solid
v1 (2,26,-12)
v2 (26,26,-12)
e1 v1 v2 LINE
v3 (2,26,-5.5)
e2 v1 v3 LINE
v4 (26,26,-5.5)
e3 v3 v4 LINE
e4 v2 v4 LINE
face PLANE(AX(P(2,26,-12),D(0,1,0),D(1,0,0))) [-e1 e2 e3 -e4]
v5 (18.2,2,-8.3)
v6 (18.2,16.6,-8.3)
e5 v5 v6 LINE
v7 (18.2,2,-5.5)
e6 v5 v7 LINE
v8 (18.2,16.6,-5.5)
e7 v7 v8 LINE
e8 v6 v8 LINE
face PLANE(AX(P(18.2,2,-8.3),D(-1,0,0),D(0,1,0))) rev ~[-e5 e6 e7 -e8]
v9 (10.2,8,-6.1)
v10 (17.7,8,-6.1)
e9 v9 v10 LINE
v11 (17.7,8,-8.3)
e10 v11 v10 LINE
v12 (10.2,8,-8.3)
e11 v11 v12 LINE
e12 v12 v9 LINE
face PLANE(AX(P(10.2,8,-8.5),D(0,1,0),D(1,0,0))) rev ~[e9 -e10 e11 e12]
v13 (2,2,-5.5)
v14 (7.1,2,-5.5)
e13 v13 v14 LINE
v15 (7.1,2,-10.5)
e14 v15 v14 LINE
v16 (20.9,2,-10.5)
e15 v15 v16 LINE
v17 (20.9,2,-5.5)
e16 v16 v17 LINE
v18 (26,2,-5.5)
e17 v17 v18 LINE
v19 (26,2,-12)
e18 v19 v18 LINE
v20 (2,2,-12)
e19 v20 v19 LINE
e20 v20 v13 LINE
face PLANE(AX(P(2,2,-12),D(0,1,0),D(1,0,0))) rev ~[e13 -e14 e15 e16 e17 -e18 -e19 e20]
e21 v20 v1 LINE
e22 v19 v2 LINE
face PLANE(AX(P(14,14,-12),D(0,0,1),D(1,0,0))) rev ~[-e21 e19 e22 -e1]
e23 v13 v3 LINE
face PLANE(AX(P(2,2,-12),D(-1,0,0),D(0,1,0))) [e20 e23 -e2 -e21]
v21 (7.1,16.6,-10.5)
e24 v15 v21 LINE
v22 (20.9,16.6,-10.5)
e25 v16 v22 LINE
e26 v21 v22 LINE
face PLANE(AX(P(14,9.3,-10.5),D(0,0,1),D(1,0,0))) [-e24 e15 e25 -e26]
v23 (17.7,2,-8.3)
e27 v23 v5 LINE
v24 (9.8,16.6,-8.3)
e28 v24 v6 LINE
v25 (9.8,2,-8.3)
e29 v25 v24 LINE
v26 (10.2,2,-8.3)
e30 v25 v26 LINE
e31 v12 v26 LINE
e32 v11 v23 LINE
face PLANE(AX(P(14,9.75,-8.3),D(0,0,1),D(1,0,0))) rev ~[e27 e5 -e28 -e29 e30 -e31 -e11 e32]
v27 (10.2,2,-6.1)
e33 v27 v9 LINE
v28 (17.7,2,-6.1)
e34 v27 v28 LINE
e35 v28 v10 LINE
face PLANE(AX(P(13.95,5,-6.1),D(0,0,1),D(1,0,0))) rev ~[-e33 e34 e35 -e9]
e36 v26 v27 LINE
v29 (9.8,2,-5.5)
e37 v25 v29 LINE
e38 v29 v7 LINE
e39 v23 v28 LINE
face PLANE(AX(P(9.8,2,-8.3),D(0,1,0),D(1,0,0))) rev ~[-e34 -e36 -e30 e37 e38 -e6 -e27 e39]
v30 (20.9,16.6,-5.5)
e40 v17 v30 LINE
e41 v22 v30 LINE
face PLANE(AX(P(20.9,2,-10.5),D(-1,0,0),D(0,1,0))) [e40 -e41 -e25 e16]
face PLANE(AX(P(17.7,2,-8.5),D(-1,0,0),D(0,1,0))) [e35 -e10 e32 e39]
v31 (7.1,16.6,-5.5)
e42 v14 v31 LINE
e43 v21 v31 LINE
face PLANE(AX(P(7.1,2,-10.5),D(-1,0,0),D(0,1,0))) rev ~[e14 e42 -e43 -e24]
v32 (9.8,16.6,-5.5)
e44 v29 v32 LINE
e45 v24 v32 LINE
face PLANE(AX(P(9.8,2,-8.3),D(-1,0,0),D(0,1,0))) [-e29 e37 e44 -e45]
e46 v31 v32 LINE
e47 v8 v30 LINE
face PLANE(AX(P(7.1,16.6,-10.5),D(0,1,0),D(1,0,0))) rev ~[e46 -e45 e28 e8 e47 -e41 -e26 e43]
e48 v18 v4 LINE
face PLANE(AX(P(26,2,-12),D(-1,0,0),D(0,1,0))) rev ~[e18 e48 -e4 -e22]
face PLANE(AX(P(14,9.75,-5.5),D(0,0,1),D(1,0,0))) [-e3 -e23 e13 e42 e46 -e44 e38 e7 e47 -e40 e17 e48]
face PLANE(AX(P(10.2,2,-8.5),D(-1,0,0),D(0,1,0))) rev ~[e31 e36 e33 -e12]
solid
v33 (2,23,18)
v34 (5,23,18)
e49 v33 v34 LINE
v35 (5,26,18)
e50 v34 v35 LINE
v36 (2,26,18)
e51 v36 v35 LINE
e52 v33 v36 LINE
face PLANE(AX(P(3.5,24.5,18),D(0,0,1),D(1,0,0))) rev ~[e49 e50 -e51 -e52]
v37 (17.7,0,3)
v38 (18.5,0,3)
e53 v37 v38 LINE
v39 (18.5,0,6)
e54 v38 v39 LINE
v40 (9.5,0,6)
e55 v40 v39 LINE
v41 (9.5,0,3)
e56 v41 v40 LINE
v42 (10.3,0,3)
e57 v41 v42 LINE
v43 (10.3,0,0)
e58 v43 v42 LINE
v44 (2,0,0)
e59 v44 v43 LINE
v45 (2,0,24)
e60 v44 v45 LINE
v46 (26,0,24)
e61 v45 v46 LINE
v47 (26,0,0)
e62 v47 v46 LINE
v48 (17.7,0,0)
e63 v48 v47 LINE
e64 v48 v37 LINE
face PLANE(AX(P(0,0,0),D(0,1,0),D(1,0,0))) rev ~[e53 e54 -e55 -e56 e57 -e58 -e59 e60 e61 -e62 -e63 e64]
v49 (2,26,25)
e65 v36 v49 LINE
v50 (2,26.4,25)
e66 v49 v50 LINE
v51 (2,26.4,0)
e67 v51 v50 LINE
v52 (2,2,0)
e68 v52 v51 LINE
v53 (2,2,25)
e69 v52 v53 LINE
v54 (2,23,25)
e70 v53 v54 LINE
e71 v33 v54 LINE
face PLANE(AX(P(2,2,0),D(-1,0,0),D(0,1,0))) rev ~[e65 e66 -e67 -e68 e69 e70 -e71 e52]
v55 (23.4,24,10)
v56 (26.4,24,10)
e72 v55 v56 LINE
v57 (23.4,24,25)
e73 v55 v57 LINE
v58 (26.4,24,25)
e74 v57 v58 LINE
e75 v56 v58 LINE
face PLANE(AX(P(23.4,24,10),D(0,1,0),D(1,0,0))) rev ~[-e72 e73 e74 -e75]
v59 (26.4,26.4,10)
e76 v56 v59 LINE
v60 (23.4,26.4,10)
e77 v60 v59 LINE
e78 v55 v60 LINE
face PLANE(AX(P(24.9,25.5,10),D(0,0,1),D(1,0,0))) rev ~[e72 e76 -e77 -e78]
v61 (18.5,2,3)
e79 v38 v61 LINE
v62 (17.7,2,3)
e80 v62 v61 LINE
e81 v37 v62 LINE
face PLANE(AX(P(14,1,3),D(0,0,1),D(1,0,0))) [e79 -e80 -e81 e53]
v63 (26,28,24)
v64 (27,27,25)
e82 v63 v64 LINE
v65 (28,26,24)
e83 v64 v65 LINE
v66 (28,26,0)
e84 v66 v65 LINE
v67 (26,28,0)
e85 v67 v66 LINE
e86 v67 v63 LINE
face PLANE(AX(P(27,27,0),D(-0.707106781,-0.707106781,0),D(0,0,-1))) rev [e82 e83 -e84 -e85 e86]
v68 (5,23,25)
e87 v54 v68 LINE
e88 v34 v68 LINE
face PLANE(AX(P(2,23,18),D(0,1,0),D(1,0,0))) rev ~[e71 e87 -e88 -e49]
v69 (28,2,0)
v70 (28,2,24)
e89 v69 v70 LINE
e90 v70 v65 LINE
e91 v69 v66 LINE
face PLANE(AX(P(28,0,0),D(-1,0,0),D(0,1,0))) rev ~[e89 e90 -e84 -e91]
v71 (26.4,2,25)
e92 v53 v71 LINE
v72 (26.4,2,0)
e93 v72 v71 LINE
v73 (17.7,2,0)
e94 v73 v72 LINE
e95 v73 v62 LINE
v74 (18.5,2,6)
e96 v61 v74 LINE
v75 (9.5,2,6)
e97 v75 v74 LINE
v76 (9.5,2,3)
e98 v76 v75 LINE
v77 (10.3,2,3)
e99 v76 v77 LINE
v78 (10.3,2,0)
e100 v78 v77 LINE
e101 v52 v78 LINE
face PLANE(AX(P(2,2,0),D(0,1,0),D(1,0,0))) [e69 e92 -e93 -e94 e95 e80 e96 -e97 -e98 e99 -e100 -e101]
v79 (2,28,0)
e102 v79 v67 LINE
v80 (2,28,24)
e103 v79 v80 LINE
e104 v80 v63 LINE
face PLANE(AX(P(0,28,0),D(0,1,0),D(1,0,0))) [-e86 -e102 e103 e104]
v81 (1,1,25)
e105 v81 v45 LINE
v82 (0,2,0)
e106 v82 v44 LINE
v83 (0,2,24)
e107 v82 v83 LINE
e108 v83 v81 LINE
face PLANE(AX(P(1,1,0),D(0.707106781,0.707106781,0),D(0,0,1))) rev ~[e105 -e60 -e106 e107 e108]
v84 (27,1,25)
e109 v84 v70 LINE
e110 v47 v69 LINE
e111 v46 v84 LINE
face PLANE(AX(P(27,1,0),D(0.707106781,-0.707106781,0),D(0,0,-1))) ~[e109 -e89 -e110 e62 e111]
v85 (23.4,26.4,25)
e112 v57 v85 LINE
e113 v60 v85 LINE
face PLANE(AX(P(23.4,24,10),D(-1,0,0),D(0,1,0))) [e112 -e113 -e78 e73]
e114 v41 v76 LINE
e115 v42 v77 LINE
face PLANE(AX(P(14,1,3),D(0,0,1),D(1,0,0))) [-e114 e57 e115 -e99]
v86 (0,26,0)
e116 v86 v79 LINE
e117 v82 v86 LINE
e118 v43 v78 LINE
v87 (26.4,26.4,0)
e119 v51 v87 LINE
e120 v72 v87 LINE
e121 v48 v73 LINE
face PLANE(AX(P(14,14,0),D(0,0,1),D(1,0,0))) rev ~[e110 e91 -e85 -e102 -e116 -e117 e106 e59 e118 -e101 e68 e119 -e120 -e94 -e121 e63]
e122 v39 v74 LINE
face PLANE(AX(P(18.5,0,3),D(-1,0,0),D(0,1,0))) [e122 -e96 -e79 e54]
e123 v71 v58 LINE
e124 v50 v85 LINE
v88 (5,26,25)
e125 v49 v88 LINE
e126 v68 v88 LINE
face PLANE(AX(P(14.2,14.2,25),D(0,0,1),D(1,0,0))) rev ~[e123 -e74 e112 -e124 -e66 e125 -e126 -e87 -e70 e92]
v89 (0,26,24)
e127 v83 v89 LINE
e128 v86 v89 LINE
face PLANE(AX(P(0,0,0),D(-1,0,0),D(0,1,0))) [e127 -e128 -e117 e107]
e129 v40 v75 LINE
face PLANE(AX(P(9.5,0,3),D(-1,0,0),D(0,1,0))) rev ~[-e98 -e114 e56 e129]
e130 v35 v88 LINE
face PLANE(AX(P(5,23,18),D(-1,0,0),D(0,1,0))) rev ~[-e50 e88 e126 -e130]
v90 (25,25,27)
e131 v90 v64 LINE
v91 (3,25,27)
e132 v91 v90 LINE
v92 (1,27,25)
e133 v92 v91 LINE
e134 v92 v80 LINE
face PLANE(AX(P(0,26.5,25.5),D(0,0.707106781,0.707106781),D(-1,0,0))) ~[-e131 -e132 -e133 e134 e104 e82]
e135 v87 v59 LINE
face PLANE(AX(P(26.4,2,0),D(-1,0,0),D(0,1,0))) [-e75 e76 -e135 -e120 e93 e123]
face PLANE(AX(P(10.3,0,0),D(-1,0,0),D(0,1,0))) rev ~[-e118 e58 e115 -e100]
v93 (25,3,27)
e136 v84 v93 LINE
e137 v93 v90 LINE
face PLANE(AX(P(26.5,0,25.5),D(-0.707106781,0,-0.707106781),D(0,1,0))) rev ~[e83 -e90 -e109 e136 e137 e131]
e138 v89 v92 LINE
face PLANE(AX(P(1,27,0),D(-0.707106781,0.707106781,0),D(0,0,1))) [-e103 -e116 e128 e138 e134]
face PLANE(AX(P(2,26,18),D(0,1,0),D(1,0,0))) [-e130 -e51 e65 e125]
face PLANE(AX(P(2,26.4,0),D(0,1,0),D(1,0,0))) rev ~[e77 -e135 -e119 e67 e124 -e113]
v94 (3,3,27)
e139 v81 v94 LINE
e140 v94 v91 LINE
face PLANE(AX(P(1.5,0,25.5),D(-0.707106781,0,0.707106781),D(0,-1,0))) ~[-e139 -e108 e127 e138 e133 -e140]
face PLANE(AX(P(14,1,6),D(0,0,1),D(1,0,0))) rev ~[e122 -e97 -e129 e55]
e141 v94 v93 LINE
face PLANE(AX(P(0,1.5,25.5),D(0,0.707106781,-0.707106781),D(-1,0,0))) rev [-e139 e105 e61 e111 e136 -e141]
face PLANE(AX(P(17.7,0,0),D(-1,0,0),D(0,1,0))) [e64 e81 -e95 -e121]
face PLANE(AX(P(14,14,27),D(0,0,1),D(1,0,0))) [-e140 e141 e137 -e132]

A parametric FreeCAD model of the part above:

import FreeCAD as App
import Part
import Sketcher


def edges_at(feature, points):
    """Names of the edges that pass closest to the given points."""
    edges = feature.Shape.Edges
    near = lambda p: min(range(len(edges)), key=lambda i: edges[i].distToShape(Part.Vertex(*p))[0])
    return sorted({f"Edge{near(p) + 1}" for p in points})

doc = App.newDocument("Part")
body = doc.addObject("PartDesign::Body", "Body")

# Sketch on XY plane
sketch1 = doc.addObject("Sketcher::SketchObject", "Sketch")
body.addObject(sketch1)
sketch1.AttachmentSupport = (doc.XY_Plane, [""])
sketch1.MapMode = "FlatFace"
sketch1.addGeometry([
    Part.LineSegment(App.Vector(0, 28, 0), App.Vector(0, 0, 0)),
    Part.LineSegment(App.Vector(0, 0, 0), App.Vector(28, 0, 0)),
    Part.LineSegment(App.Vector(28, 0, 0), App.Vector(28, 28, 0)),
    Part.LineSegment(App.Vector(28, 28, 0), App.Vector(0, 28, 0)),
], False)
sketch1.addConstraint([
    Sketcher.Constraint("Coincident", 0, 2, 1, 1),
    Sketcher.Constraint("Coincident", 1, 2, 2, 1),
    Sketcher.Constraint("Coincident", 2, 2, 3, 1),
    Sketcher.Constraint("Coincident", 3, 2, 0, 1),
    Sketcher.Constraint("Vertical", 0),
    Sketcher.Constraint("Horizontal", 1),
    Sketcher.Constraint("Vertical", 2),
    Sketcher.Constraint("Horizontal", 3),
    Sketcher.Constraint("Coincident", 0, 2, -1, 1),
    Sketcher.Constraint("Equal", 3, 0),
    Sketcher.Constraint("DistanceX", 1, 1, 1, 2, 28.0),
])
pad1 = doc.addObject("PartDesign::Pad", "Pad")
body.addObject(pad1)
pad1.Profile = sketch1
pad1.Length = 27

# Sketch on XY plane
sketch2 = doc.addObject("Sketcher::SketchObject", "Sketch001")
body.addObject(sketch2)
sketch2.AttachmentSupport = (doc.XY_Plane, [""])
sketch2.MapMode = "FlatFace"
sketch2.addGeometry([
    Part.LineSegment(App.Vector(2, 26, 0), App.Vector(2, 2, 0)),
    Part.LineSegment(App.Vector(2, 2, 0), App.Vector(26, 2, 0)),
    Part.LineSegment(App.Vector(26, 2, 0), App.Vector(26, 26, 0)),
    Part.LineSegment(App.Vector(26, 26, 0), App.Vector(2, 26, 0)),
], False)
sketch2.addConstraint([
    Sketcher.Constraint("Coincident", 0, 2, 1, 1),
    Sketcher.Constraint("Coincident", 1, 2, 2, 1),
    Sketcher.Constraint("Coincident", 2, 2, 3, 1),
    Sketcher.Constraint("Coincident", 3, 2, 0, 1),
    Sketcher.Constraint("Vertical", 0),
    Sketcher.Constraint("Horizontal", 1),
    Sketcher.Constraint("Vertical", 2),
    Sketcher.Constraint("Horizontal", 3),
    Sketcher.Constraint("Equal", 3, 0),
    Sketcher.Constraint("DistanceX", 1, 1, 1, 2, 24.4),
    Sketcher.Constraint("DistanceX", -1, 1, 0, 2, 2.0),
    Sketcher.Constraint("DistanceY", -1, 1, 0, 2, 2.0),
])
pocket1 = doc.addObject("PartDesign::Pocket", "Pocket")
body.addObject(pocket1)
pocket1.Profile = sketch2
pocket1.Length = 25
pocket1.Reversed = True

# Sketch on XY plane
sketch3 = doc.addObject("Sketcher::SketchObject", "Sketch002")
body.addObject(sketch3)
sketch3.AttachmentSupport = (doc.XY_Plane, [""])
sketch3.MapMode = "FlatFace"
sketch3.addGeometry([
    Part.LineSegment(App.Vector(10.3, 2.3, 0), App.Vector(10.3, 0, 0)),
    Part.LineSegment(App.Vector(10.3, 0, 0), App.Vector(17.7, 0, 0)),
    Part.LineSegment(App.Vector(17.7, 0, 0), App.Vector(17.7, 2.3, 0)),
    Part.LineSegment(App.Vector(17.7, 2.3, 0), App.Vector(10.3, 2.3, 0)),
], False)
sketch3.addConstraint([
    Sketcher.Constraint("Coincident", 0, 2, 1, 1),
    Sketcher.Constraint("Coincident", 1, 2, 2, 1),
    Sketcher.Constraint("Coincident", 2, 2, 3, 1),
    Sketcher.Constraint("Coincident", 3, 2, 0, 1),
    Sketcher.Constraint("Vertical", 0),
    Sketcher.Constraint("Horizontal", 1),
    Sketcher.Constraint("Vertical", 2),
    Sketcher.Constraint("Horizontal", 3),
    Sketcher.Constraint("PointOnObject", 0, 2, -1),
    Sketcher.Constraint("DistanceX", 1, 1, 1, 2, 7.4),
    Sketcher.Constraint("DistanceY", 0, 2, 0, 1, 2.3),
    Sketcher.Constraint("DistanceX", -1, 1, 0, 2, 10.3),
])
pocket2 = doc.addObject("PartDesign::Pocket", "Pocket001")
body.addObject(pocket2)
pocket2.Profile = sketch3
pocket2.Length = 5
pocket2.Reversed = True
doc.recompute()

chamfer = doc.addObject("PartDesign::Chamfer", "Chamfer")
body.addObject(chamfer)
chamfer.Base = (pocket2, edges_at(pocket2, [
    (0, 14, 27),
    (14, 0, 27),
    (28, 14, 27),
    (14, 28, 27),
]))
chamfer.Size = 3
doc.recompute()

chamfer2 = doc.addObject("PartDesign::Chamfer", "Chamfer001")
body.addObject(chamfer2)
chamfer2.Base = (chamfer, edges_at(chamfer, [
    (0, 0, 12),
    (0, 28, 12),
    (28, 0, 12),
    (28, 28, 12),
]))
chamfer2.Size = 2

# Sketch on XY plane
sketch4 = doc.addObject("Sketcher::SketchObject", "Sketch003")
body.addObject(sketch4)
sketch4.AttachmentSupport = (doc.XY_Plane, [""])
sketch4.MapMode = "FlatFace"
sketch4.AttachmentOffset = App.Placement(App.Vector(0, 0, 10), App.Rotation())
sketch4.addGeometry([
    Part.LineSegment(App.Vector(23.4, 27, 0), App.Vector(23.4, 24, 0)),
    Part.LineSegment(App.Vector(23.4, 24, 0), App.Vector(26.4, 24, 0)),
    Part.LineSegment(App.Vector(26.4, 24, 0), App.Vector(26.4, 27, 0)),
    Part.LineSegment(App.Vector(26.4, 27, 0), App.Vector(23.4, 27, 0)),
], False)
sketch4.addConstraint([
    Sketcher.Constraint("Coincident", 0, 2, 1, 1),
    Sketcher.Constraint("Coincident", 1, 2, 2, 1),
    Sketcher.Constraint("Coincident", 2, 2, 3, 1),
    Sketcher.Constraint("Coincident", 3, 2, 0, 1),
    Sketcher.Constraint("Vertical", 0),
    Sketcher.Constraint("Horizontal", 1),
    Sketcher.Constraint("Vertical", 2),
    Sketcher.Constraint("Horizontal", 3),
    Sketcher.Constraint("Equal", 3, 0),
    Sketcher.Constraint("DistanceX", 1, 1, 1, 2, 3.0),
    Sketcher.Constraint("DistanceY", -1, 1, 0, 2, 24.0),
    Sketcher.Constraint("DistanceX", -1, 1, 0, 2, 23.4),
])
pad2 = doc.addObject("PartDesign::Pad", "Pad001")
body.addObject(pad2)
pad2.Profile = sketch4
pad2.Length = 15

# Sketch on XY plane
sketch5 = doc.addObject("Sketcher::SketchObject", "Sketch004")
body.addObject(sketch5)
sketch5.AttachmentSupport = (doc.XY_Plane, [""])
sketch5.MapMode = "FlatFace"
sketch5.AttachmentOffset = App.Placement(App.Vector(0, 0, 18), App.Rotation())
sketch5.addGeometry([
    Part.LineSegment(App.Vector(2, 26, 0), App.Vector(2, 23, 0)),
    Part.LineSegment(App.Vector(2, 23, 0), App.Vector(5, 23, 0)),
    Part.LineSegment(App.Vector(5, 23, 0), App.Vector(5, 26, 0)),
    Part.LineSegment(App.Vector(5, 26, 0), App.Vector(2, 26, 0)),
], False)
sketch5.addConstraint([
    Sketcher.Constraint("Coincident", 0, 2, 1, 1),
    Sketcher.Constraint("Coincident", 1, 2, 2, 1),
    Sketcher.Constraint("Coincident", 2, 2, 3, 1),
    Sketcher.Constraint("Coincident", 3, 2, 0, 1),
    Sketcher.Constraint("Vertical", 0),
    Sketcher.Constraint("Horizontal", 1),
    Sketcher.Constraint("Vertical", 2),
    Sketcher.Constraint("Horizontal", 3),
    Sketcher.Constraint("Equal", 3, 0),
    Sketcher.Constraint("DistanceX", 1, 1, 1, 2, 3.0),
    Sketcher.Constraint("DistanceX", -1, 1, 0, 2, 2.0),
    Sketcher.Constraint("DistanceY", -1, 1, 0, 2, 23.0),
])
pad3 = doc.addObject("PartDesign::Pad", "Pad002")
body.addObject(pad3)
pad3.Profile = sketch5
pad3.Length = 7

# Sketch on XY plane
sketch6 = doc.addObject("Sketcher::SketchObject", "Sketch005")
body.addObject(sketch6)
sketch6.AttachmentSupport = (doc.XY_Plane, [""])
sketch6.MapMode = "FlatFace"
sketch6.AttachmentOffset = App.Placement(App.Vector(0, 0, 3), App.Rotation())
sketch6.addGeometry([
    Part.LineSegment(App.Vector(9.5, 2, 0), App.Vector(9.5, 0, 0)),
    Part.LineSegment(App.Vector(9.5, 0, 0), App.Vector(18.5, 0, 0)),
    Part.LineSegment(App.Vector(18.5, 0, 0), App.Vector(18.5, 2, 0)),
    Part.LineSegment(App.Vector(18.5, 2, 0), App.Vector(9.5, 2, 0)),
], False)
sketch6.addConstraint([
    Sketcher.Constraint("Coincident", 0, 2, 1, 1),
    Sketcher.Constraint("Coincident", 1, 2, 2, 1),
    Sketcher.Constraint("Coincident", 2, 2, 3, 1),
    Sketcher.Constraint("Coincident", 3, 2, 0, 1),
    Sketcher.Constraint("Vertical", 0),
    Sketcher.Constraint("Horizontal", 1),
    Sketcher.Constraint("Vertical", 2),
    Sketcher.Constraint("Horizontal", 3),
    Sketcher.Constraint("PointOnObject", 0, 2, -1),
    Sketcher.Constraint("DistanceX", 1, 1, 1, 2, 9.0),
    Sketcher.Constraint("DistanceY", 0, 2, 0, 1, 2.0),
    Sketcher.Constraint("DistanceX", -1, 1, 0, 2, 9.5),
])
pocket3 = doc.addObject("PartDesign::Pocket", "Pocket002")
body.addObject(pocket3)
pocket3.Profile = sketch6
pocket3.Length = 3
pocket3.Reversed = True
body2 = doc.addObject("PartDesign::Body", "Body001")

# Sketch on XY plane
sketch7 = doc.addObject("Sketcher::SketchObject", "Sketch006")
body2.addObject(sketch7)
sketch7.AttachmentSupport = (doc.getObject("XY_Plane001"), [""])
sketch7.MapMode = "FlatFace"
sketch7.AttachmentOffset = App.Placement(App.Vector(0, 0, -12), App.Rotation())
sketch7.addGeometry([
    Part.LineSegment(App.Vector(2, 26, 0), App.Vector(2, 2, 0)),
    Part.LineSegment(App.Vector(2, 2, 0), App.Vector(26, 2, 0)),
    Part.LineSegment(App.Vector(26, 2, 0), App.Vector(26, 26, 0)),
    Part.LineSegment(App.Vector(26, 26, 0), App.Vector(2, 26, 0)),
], False)
sketch7.addConstraint([
    Sketcher.Constraint("Coincident", 0, 2, 1, 1),
    Sketcher.Constraint("Coincident", 1, 2, 2, 1),
    Sketcher.Constraint("Coincident", 2, 2, 3, 1),
    Sketcher.Constraint("Coincident", 3, 2, 0, 1),
    Sketcher.Constraint("Vertical", 0),
    Sketcher.Constraint("Horizontal", 1),
    Sketcher.Constraint("Vertical", 2),
    Sketcher.Constraint("Horizontal", 3),
    Sketcher.Constraint("Equal", 3, 0),
    Sketcher.Constraint("DistanceX", 1, 1, 1, 2, 24.0),
    Sketcher.Constraint("DistanceX", -1, 1, 0, 2, 2.0),
    Sketcher.Constraint("DistanceY", -1, 1, 0, 2, 2.0),
])
pad4 = doc.addObject("PartDesign::Pad", "Pad003")
body2.addObject(pad4)
pad4.Profile = sketch7
pad4.Length = 6.5

# Sketch on XY plane
sketch8 = doc.addObject("Sketcher::SketchObject", "Sketch007")
body2.addObject(sketch8)
sketch8.AttachmentSupport = (doc.getObject("XY_Plane001"), [""])
sketch8.MapMode = "FlatFace"
sketch8.AttachmentOffset = App.Placement(App.Vector(0, 0, -10.5), App.Rotation())
sketch8.addGeometry([
    Part.LineSegment(App.Vector(7, 17, 0), App.Vector(7, 2, 0)),
    Part.LineSegment(App.Vector(7, 2, 0), App.Vector(21, 2, 0)),
    Part.LineSegment(App.Vector(21, 2, 0), App.Vector(21, 17, 0)),
    Part.LineSegment(App.Vector(21, 17, 0), App.Vector(7, 17, 0)),
], False)
sketch8.addConstraint([
    Sketcher.Constraint("Coincident", 0, 2, 1, 1),
    Sketcher.Constraint("Coincident", 1, 2, 2, 1),
    Sketcher.Constraint("Coincident", 2, 2, 3, 1),
    Sketcher.Constraint("Coincident", 3, 2, 0, 1),
    Sketcher.Constraint("Vertical", 0),
    Sketcher.Constraint("Horizontal", 1),
    Sketcher.Constraint("Vertical", 2),
    Sketcher.Constraint("Horizontal", 3),
    Sketcher.Constraint("DistanceX", 1, 1, 1, 2, 13.8),
    Sketcher.Constraint("DistanceY", 0, 2, 0, 1, 14.6),
    Sketcher.Constraint("DistanceY", -1, 1, 0, 2, 2.0),
    Sketcher.Constraint("DistanceX", -1, 1, 0, 2, 7.1),
])
pocket4 = doc.addObject("PartDesign::Pocket", "Pocket003")
body2.addObject(pocket4)
pocket4.Profile = sketch8
pocket4.Length = 5
pocket4.Reversed = True

# Sketch on XY plane
sketch9 = doc.addObject("Sketcher::SketchObject", "Sketch008")
body2.addObject(sketch9)
sketch9.AttachmentSupport = (doc.getObject("XY_Plane001"), [""])
sketch9.MapMode = "FlatFace"
sketch9.AttachmentOffset = App.Placement(App.Vector(0, 0, -8.3), App.Rotation())
sketch9.addGeometry([
    Part.LineSegment(App.Vector(10, 18, 0), App.Vector(10, 2, 0)),
    Part.LineSegment(App.Vector(10, 2, 0), App.Vector(18, 2, 0)),
    Part.LineSegment(App.Vector(18, 2, 0), App.Vector(18, 18, 0)),
    Part.LineSegment(App.Vector(18, 18, 0), App.Vector(10, 18, 0)),
], False)
sketch9.addConstraint([
    Sketcher.Constraint("Coincident", 0, 2, 1, 1),
    Sketcher.Constraint("Coincident", 1, 2, 2, 1),
    Sketcher.Constraint("Coincident", 2, 2, 3, 1),
    Sketcher.Constraint("Coincident", 3, 2, 0, 1),
    Sketcher.Constraint("Vertical", 0),
    Sketcher.Constraint("Horizontal", 1),
    Sketcher.Constraint("Vertical", 2),
    Sketcher.Constraint("Horizontal", 3),
    Sketcher.Constraint("DistanceX", 1, 1, 1, 2, 8.4),
    Sketcher.Constraint("DistanceY", 0, 2, 0, 1, 15.5),
    Sketcher.Constraint("DistanceY", -1, 1, 0, 2, 2.0),
    Sketcher.Constraint("DistanceX", -1, 1, 0, 2, 9.8),
])
pad5 = doc.addObject("PartDesign::Pad", "Pad004")
body2.addObject(pad5)
pad5.Profile = sketch9
pad5.Length = 2.8

# Sketch on XY plane
sketch10 = doc.addObject("Sketcher::SketchObject", "Sketch009")
body2.addObject(sketch10)
sketch10.AttachmentSupport = (doc.getObject("XY_Plane001"), [""])
sketch10.MapMode = "FlatFace"
sketch10.AttachmentOffset = App.Placement(App.Vector(0, 0, -8.5), App.Rotation())
sketch10.addGeometry([
    Part.LineSegment(App.Vector(10, 8, 0), App.Vector(10, 2, 0)),
    Part.LineSegment(App.Vector(10, 2, 0), App.Vector(18, 2, 0)),
    Part.LineSegment(App.Vector(18, 2, 0), App.Vector(18, 8, 0)),
    Part.LineSegment(App.Vector(18, 8, 0), App.Vector(10, 8, 0)),
], False)
sketch10.addConstraint([
    Sketcher.Constraint("Coincident", 0, 2, 1, 1),
    Sketcher.Constraint("Coincident", 1, 2, 2, 1),
    Sketcher.Constraint("Coincident", 2, 2, 3, 1),
    Sketcher.Constraint("Coincident", 3, 2, 0, 1),
    Sketcher.Constraint("Vertical", 0),
    Sketcher.Constraint("Horizontal", 1),
    Sketcher.Constraint("Vertical", 2),
    Sketcher.Constraint("Horizontal", 3),
    Sketcher.Constraint("DistanceY", 0, 2, 0, 1, 6.0),
    Sketcher.Constraint("DistanceX", 1, 1, 1, 2, 7.5),
    Sketcher.Constraint("DistanceY", -1, 1, 0, 2, 2.0),
    Sketcher.Constraint("DistanceX", -1, 1, 0, 2, 10.2),
])
pocket5 = doc.addObject("PartDesign::Pocket", "Pocket004")
body2.addObject(pocket5)
pocket5.Profile = sketch10
pocket5.Length = 2.4
pocket5.Reversed = True

doc.recompute()
